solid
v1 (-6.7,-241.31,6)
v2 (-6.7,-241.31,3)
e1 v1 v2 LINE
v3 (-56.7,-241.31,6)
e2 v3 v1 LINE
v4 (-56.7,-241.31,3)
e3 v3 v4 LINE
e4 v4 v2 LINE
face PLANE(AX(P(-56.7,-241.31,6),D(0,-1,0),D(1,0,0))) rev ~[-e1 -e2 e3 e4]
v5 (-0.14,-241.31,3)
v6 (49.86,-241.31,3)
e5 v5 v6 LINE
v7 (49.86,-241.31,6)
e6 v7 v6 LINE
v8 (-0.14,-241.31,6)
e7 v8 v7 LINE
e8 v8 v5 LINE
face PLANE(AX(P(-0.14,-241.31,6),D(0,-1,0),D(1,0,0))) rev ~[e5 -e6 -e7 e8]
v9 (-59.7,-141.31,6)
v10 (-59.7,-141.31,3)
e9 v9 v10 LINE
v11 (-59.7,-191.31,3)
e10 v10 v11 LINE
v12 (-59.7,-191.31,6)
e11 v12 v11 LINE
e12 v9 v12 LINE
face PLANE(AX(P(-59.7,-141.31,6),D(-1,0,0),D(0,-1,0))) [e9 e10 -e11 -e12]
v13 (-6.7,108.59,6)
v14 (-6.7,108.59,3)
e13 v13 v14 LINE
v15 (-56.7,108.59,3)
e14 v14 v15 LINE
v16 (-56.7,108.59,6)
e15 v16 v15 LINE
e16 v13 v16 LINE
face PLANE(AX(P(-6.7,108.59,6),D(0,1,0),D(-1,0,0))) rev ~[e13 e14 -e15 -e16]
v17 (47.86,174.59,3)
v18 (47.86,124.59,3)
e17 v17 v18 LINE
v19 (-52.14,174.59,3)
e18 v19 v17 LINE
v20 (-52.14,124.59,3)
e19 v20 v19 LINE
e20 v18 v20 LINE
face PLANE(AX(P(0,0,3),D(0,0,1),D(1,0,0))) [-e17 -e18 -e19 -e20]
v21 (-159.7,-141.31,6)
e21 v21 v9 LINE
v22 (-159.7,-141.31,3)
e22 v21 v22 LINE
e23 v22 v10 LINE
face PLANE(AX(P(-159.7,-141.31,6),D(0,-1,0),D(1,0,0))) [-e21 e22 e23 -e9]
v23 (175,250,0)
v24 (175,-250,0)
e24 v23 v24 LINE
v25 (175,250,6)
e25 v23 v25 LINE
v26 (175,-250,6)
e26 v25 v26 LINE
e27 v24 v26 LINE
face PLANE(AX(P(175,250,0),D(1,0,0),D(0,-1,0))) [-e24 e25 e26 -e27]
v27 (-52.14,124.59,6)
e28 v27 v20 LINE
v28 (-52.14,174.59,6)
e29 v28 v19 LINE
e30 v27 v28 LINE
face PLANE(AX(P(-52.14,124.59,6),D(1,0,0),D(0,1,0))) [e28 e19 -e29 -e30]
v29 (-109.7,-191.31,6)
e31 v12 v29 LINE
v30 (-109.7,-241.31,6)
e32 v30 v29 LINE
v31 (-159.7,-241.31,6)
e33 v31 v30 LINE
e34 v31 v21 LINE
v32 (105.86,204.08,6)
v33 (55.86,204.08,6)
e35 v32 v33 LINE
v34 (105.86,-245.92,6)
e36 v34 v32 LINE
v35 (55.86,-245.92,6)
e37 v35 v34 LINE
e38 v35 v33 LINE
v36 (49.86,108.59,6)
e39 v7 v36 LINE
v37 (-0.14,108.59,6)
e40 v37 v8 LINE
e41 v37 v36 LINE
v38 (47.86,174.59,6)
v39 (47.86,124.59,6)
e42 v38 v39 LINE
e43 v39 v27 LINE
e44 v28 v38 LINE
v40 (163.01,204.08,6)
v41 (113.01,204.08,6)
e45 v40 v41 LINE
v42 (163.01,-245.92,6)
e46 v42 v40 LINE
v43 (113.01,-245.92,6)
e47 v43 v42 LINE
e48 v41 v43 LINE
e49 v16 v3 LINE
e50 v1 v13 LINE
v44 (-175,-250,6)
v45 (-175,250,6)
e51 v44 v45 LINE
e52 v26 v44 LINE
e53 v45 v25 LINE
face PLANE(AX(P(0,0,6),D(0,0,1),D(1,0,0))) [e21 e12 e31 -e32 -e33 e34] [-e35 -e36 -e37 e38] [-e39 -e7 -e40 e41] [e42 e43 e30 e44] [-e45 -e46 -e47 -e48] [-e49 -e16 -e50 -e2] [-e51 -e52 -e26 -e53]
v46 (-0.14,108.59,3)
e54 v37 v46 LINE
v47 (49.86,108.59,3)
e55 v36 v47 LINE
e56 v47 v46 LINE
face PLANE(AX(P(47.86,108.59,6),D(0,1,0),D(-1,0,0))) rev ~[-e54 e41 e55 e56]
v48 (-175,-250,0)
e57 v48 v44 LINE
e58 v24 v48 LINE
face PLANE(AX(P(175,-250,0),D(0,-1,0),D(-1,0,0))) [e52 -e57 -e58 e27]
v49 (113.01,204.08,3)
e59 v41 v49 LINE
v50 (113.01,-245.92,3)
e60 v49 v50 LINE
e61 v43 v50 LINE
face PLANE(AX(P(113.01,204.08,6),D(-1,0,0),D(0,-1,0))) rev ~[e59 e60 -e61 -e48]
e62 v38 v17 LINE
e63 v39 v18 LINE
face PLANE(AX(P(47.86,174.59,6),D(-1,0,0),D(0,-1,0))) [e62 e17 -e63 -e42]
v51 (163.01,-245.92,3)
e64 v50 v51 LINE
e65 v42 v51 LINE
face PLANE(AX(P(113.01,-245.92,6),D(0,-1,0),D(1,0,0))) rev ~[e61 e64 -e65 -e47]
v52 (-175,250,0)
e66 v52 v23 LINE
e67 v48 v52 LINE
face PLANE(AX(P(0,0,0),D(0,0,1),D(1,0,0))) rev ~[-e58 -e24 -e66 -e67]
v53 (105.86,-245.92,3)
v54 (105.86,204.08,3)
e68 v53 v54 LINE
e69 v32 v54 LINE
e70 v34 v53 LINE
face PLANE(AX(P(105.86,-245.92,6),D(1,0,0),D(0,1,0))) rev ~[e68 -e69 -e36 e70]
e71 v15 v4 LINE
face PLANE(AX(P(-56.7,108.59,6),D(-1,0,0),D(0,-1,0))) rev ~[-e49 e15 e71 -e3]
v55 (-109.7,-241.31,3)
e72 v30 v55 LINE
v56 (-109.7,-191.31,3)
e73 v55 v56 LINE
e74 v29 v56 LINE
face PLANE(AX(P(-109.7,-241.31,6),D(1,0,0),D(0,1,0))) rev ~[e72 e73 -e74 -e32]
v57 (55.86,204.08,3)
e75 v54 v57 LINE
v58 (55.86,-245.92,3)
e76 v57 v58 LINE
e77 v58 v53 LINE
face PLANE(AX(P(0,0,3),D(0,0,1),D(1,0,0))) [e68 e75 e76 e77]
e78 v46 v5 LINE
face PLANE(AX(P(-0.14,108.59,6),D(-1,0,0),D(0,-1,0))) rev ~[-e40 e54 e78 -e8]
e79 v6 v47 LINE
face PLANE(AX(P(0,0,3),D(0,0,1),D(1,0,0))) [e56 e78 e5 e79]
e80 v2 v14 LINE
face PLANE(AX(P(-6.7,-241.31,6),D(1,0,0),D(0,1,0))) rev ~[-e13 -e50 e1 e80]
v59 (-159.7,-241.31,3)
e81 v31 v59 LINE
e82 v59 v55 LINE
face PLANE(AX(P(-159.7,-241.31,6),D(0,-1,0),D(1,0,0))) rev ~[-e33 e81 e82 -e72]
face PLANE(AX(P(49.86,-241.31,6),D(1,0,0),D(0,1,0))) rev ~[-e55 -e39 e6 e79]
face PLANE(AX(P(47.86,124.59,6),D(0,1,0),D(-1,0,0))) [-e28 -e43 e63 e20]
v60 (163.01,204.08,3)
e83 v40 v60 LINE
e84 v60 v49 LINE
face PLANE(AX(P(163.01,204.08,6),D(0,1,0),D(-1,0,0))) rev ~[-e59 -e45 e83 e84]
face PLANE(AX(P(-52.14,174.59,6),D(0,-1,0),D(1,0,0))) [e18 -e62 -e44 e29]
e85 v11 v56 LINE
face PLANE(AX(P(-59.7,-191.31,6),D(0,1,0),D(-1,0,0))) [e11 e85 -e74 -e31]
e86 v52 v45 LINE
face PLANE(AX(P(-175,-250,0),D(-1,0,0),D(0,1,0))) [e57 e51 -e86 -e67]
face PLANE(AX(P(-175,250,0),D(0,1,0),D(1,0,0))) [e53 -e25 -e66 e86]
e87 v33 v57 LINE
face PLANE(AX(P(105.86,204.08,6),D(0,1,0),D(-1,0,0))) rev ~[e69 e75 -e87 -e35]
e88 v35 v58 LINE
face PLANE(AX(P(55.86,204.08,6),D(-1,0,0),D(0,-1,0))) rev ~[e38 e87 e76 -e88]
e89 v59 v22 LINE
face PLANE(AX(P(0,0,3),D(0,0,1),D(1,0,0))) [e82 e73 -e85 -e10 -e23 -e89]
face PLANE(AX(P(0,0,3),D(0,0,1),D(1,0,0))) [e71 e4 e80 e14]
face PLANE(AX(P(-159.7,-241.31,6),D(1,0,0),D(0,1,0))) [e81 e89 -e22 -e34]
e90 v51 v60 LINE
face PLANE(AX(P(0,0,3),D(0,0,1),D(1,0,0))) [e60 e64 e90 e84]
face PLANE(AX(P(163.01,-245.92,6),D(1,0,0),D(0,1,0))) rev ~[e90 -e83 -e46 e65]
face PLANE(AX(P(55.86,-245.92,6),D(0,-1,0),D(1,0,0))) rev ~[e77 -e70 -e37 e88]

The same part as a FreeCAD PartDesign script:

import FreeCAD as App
import Part
import Sketcher

V = App.Vector
Q = App.Units.Quantity

doc = App.newDocument("Part")
body = doc.addObject("PartDesign::Body", "Body")

sketch1 = doc.addObject("Sketcher::SketchObject", "Sketch")
body.addObject(sketch1)
sketch1.AttachmentSupport = (doc.XY_Plane, [""])
sketch1.MapMode = "FlatFace"
sketch1.addGeometry([
    Part.LineSegment(V(175, 250, 0), V(-175, 250, 0)),
    Part.LineSegment(V(-175, 250, 0), V(-175, -250, 0)),
    Part.LineSegment(V(-175, -250, 0), V(175, -250, 0)),
    Part.LineSegment(V(175, -250, 0), V(175, 250, 0)),
], False)
sketch1.addConstraint([
    Sketcher.Constraint("Coincident", 0, 2, 1, 1),
    Sketcher.Constraint("Coincident", 1, 2, 2, 1),
    Sketcher.Constraint("Coincident", 2, 2, 3, 1),
    Sketcher.Constraint("Coincident", 3, 2, 0, 1),
    Sketcher.Constraint("Horizontal", 0),
    Sketcher.Constraint("Vertical", 1),
    Sketcher.Constraint("Horizontal", 2),
    Sketcher.Constraint("Vertical", 3),
    Sketcher.Constraint("Symmetric", 0, 2, 2, 2, -1, 1),
    Sketcher.Constraint("DistanceX", 0, 2, 0, 1, Q("350 mm")),
    Sketcher.Constraint("DistanceY", 1, 2, 1, 1, Q("500 mm")),
])
pad1 = doc.addObject("PartDesign::Pad", "Pad")
body.addObject(pad1)
pad1.Profile = sketch1
pad1.Length = 6

sketch2 = doc.addObject("Sketcher::SketchObject", "Sketch001")
body.addObject(sketch2)
sketch2.AttachmentSupport = (doc.XY_Plane, [""])
sketch2.MapMode = "FlatFace"
sketch2.AttachmentOffset = App.Placement(V(0, 0, 6), App.Rotation())
sketch2.addGeometry([
    Part.LineSegment(V(-52, 125, 0), V(48, 125, 0)),
    Part.LineSegment(V(48, 125, 0), V(48, 175, 0)),
    Part.LineSegment(V(48, 175, 0), V(-52, 175, 0)),
    Part.LineSegment(V(-52, 175, 0), V(-52, 125, 0)),
    Part.LineSegment(V(113, 204, 0), V(113, -246, 0)),
    Part.LineSegment(V(113, -246, 0), V(163, -246, 0)),
    Part.LineSegment(V(163, -246, 0), V(163, 204, 0)),
    Part.LineSegment(V(163, 204, 0), V(113, 204, 0)),
    Part.LineSegment(V(0, 109, 0), V(0, -241, 0)),
    Part.LineSegment(V(0, -241, 0), V(50, -241, 0)),
    Part.LineSegment(V(50, -241, 0), V(50, 109, 0)),
    Part.LineSegment(V(50, 109, 0), V(0, 109, 0)),
    Part.LineSegment(V(-57, 109, 0), V(-57, -241, 0)),
    Part.LineSegment(V(-57, -241, 0), V(-7, -241, 0)),
    Part.LineSegment(V(-7, -241, 0), V(-7, 109, 0)),
    Part.LineSegment(V(-7, 109, 0), V(-57, 109, 0)),
    Part.LineSegment(V(-160, -141, 0), V(-160, -241, 0)),
    Part.LineSegment(V(-160, -241, 0), V(-110, -241, 0)),
    Part.LineSegment(V(-110, -241, 0), V(-110, -191, 0)),
    Part.LineSegment(V(-110, -191, 0), V(-60, -191, 0)),
    Part.LineSegment(V(-60, -191, 0), V(-60, -141, 0)),
    Part.LineSegment(V(-60, -141, 0), V(-160, -141, 0)),
    Part.LineSegment(V(56, 204, 0), V(56, -246, 0)),
    Part.LineSegment(V(56, -246, 0), V(106, -246, 0)),
    Part.LineSegment(V(106, -246, 0), V(106, 204, 0)),
    Part.LineSegment(V(106, 204, 0), V(56, 204, 0)),
], False)
sketch2.addConstraint([
    Sketcher.Constraint("Coincident", 0, 2, 1, 1),
    Sketcher.Constraint("Coincident", 1, 2, 2, 1),
    Sketcher.Constraint("Coincident", 2, 2, 3, 1),
    Sketcher.Constraint("Coincident", 3, 2, 0, 1),
    Sketcher.Constraint("Coincident", 4, 2, 5, 1),
    Sketcher.Constraint("Coincident", 5, 2, 6, 1),
    Sketcher.Constraint("Coincident", 6, 2, 7, 1),
    Sketcher.Constraint("Coincident", 7, 2, 4, 1),
    Sketcher.Constraint("Coincident", 8, 2, 9, 1),
    Sketcher.Constraint("Coincident", 9, 2, 10, 1),
    Sketcher.Constraint("Coincident", 10, 2, 11, 1),
    Sketcher.Constraint("Coincident", 11, 2, 8, 1),
    Sketcher.Constraint("Coincident", 12, 2, 13, 1),
    Sketcher.Constraint("Coincident", 13, 2, 14, 1),
    Sketcher.Constraint("Coincident", 14, 2, 15, 1),
    Sketcher.Constraint("Coincident", 15, 2, 12, 1),
    Sketcher.Constraint("Coincident", 16, 2, 17, 1),
    Sketcher.Constraint("Coincident", 17, 2, 18, 1),
    Sketcher.Constraint("Coincident", 18, 2, 19, 1),
    Sketcher.Constraint("Coincident", 19, 2, 20, 1),
    Sketcher.Constraint("Coincident", 20, 2, 21, 1),
    Sketcher.Constraint("Coincident", 21, 2, 16, 1),
    Sketcher.Constraint("Coincident", 22, 2, 23, 1),
    Sketcher.Constraint("Coincident", 23, 2, 24, 1),
    Sketcher.Constraint("Coincident", 24, 2, 25, 1),
    Sketcher.Constraint("Coincident", 25, 2, 22, 1),
    Sketcher.Constraint("Horizontal", 0),
    Sketcher.Constraint("Vertical", 1),
    Sketcher.Constraint("Horizontal", 2),
    Sketcher.Constraint("Vertical", 3),
    Sketcher.Constraint("Vertical", 4),
    Sketcher.Constraint("Horizontal", 5),
    Sketcher.Constraint("Vertical", 6),
    Sketcher.Constraint("Horizontal", 7),
    Sketcher.Constraint("Vertical", 8),
    Sketcher.Constraint("Horizontal", 9),
    Sketcher.Constraint("Vertical", 10),
    Sketcher.Constraint("Horizontal", 11),
    Sketcher.Constraint("Vertical", 12),
    Sketcher.Constraint("Horizontal", 13),
    Sketcher.Constraint("Vertical", 14),
    Sketcher.Constraint("Horizontal", 15),
    Sketcher.Constraint("Vertical", 16),
    Sketcher.Constraint("Horizontal", 17),
    Sketcher.Constraint("Vertical", 18),
    Sketcher.Constraint("Horizontal", 19),
    Sketcher.Constraint("Vertical", 20),
    Sketcher.Constraint("Horizontal", 21),
    Sketcher.Constraint("Vertical", 22),
    Sketcher.Constraint("Horizontal", 23),
    Sketcher.Constraint("Vertical", 24),
    Sketcher.Constraint("Horizontal", 25),
    Sketcher.Constraint("Horizontal", 9, 2, 12, 2),
    Sketcher.Constraint("Horizontal", 11, 2, 14, 2),
    Sketcher.Constraint("Horizontal", 13, 2, 16, 2),
    Sketcher.Constraint("Horizontal", 5, 2, 22, 2),
    Sketcher.Constraint("Horizontal", 7, 2, 24, 2),
    Sketcher.Constraint("Equal", 7, 9),
    Sketcher.Constraint("Equal", 11, 13),
    Sketcher.Constraint("Equal", 15, 17),
    Sketcher.Constraint("Equal", 17, 19),
    Sketcher.Constraint("Equal", 2, 21),
    Sketcher.Constraint("Equal", 19, 23),
    Sketcher.Constraint("Equal", 25, 1),
    Sketcher.Constraint("Equal", 21, 16),
    Sketcher.Constraint("Equal", 3, 18),
    Sketcher.Constraint("DistanceX", 0, 1, 0, 2, Q("100 mm")),
    Sketcher.Constraint("DistanceY", 4, 2, 4, 1, Q("450 mm")),
    Sketcher.Constraint("DistanceY", 8, 2, 8, 1, Q("349.9 mm")),
    Sketcher.Constraint("DistanceX", 0, 2, 9, 2, Q("2 mm")),
    Sketcher.Constraint("DistanceY", 10, 2, 0, 2, Q("16 mm")),
    Sketcher.Constraint("DistanceX", 17, 2, 12, 2, Q("53 mm")),
    Sketcher.Constraint("DistanceX", 9, 2, 22, 2, Q("6 mm")),
    Sketcher.Constraint("DistanceY", 4, 2, 8, 2, Q("4.61 mm")),
    Sketcher.Constraint("DistanceX", 13, 2, 8, 2, Q("6.56 mm")),
    Sketcher.Constraint("DistanceX", 23, 2, 4, 2, Q("7.15 mm")),
    Sketcher.Constraint("DistanceX", 12, 2, -1, 1, Q("56.7 mm")),
    Sketcher.Constraint("DistanceY", -1, 1, 0, 2, Q("124.59 mm")),
])
pocket1 = doc.addObject("PartDesign::Pocket", "Pocket")
body.addObject(pocket1)
pocket1.Profile = sketch2
pocket1.Length = 3

doc.recompute()
